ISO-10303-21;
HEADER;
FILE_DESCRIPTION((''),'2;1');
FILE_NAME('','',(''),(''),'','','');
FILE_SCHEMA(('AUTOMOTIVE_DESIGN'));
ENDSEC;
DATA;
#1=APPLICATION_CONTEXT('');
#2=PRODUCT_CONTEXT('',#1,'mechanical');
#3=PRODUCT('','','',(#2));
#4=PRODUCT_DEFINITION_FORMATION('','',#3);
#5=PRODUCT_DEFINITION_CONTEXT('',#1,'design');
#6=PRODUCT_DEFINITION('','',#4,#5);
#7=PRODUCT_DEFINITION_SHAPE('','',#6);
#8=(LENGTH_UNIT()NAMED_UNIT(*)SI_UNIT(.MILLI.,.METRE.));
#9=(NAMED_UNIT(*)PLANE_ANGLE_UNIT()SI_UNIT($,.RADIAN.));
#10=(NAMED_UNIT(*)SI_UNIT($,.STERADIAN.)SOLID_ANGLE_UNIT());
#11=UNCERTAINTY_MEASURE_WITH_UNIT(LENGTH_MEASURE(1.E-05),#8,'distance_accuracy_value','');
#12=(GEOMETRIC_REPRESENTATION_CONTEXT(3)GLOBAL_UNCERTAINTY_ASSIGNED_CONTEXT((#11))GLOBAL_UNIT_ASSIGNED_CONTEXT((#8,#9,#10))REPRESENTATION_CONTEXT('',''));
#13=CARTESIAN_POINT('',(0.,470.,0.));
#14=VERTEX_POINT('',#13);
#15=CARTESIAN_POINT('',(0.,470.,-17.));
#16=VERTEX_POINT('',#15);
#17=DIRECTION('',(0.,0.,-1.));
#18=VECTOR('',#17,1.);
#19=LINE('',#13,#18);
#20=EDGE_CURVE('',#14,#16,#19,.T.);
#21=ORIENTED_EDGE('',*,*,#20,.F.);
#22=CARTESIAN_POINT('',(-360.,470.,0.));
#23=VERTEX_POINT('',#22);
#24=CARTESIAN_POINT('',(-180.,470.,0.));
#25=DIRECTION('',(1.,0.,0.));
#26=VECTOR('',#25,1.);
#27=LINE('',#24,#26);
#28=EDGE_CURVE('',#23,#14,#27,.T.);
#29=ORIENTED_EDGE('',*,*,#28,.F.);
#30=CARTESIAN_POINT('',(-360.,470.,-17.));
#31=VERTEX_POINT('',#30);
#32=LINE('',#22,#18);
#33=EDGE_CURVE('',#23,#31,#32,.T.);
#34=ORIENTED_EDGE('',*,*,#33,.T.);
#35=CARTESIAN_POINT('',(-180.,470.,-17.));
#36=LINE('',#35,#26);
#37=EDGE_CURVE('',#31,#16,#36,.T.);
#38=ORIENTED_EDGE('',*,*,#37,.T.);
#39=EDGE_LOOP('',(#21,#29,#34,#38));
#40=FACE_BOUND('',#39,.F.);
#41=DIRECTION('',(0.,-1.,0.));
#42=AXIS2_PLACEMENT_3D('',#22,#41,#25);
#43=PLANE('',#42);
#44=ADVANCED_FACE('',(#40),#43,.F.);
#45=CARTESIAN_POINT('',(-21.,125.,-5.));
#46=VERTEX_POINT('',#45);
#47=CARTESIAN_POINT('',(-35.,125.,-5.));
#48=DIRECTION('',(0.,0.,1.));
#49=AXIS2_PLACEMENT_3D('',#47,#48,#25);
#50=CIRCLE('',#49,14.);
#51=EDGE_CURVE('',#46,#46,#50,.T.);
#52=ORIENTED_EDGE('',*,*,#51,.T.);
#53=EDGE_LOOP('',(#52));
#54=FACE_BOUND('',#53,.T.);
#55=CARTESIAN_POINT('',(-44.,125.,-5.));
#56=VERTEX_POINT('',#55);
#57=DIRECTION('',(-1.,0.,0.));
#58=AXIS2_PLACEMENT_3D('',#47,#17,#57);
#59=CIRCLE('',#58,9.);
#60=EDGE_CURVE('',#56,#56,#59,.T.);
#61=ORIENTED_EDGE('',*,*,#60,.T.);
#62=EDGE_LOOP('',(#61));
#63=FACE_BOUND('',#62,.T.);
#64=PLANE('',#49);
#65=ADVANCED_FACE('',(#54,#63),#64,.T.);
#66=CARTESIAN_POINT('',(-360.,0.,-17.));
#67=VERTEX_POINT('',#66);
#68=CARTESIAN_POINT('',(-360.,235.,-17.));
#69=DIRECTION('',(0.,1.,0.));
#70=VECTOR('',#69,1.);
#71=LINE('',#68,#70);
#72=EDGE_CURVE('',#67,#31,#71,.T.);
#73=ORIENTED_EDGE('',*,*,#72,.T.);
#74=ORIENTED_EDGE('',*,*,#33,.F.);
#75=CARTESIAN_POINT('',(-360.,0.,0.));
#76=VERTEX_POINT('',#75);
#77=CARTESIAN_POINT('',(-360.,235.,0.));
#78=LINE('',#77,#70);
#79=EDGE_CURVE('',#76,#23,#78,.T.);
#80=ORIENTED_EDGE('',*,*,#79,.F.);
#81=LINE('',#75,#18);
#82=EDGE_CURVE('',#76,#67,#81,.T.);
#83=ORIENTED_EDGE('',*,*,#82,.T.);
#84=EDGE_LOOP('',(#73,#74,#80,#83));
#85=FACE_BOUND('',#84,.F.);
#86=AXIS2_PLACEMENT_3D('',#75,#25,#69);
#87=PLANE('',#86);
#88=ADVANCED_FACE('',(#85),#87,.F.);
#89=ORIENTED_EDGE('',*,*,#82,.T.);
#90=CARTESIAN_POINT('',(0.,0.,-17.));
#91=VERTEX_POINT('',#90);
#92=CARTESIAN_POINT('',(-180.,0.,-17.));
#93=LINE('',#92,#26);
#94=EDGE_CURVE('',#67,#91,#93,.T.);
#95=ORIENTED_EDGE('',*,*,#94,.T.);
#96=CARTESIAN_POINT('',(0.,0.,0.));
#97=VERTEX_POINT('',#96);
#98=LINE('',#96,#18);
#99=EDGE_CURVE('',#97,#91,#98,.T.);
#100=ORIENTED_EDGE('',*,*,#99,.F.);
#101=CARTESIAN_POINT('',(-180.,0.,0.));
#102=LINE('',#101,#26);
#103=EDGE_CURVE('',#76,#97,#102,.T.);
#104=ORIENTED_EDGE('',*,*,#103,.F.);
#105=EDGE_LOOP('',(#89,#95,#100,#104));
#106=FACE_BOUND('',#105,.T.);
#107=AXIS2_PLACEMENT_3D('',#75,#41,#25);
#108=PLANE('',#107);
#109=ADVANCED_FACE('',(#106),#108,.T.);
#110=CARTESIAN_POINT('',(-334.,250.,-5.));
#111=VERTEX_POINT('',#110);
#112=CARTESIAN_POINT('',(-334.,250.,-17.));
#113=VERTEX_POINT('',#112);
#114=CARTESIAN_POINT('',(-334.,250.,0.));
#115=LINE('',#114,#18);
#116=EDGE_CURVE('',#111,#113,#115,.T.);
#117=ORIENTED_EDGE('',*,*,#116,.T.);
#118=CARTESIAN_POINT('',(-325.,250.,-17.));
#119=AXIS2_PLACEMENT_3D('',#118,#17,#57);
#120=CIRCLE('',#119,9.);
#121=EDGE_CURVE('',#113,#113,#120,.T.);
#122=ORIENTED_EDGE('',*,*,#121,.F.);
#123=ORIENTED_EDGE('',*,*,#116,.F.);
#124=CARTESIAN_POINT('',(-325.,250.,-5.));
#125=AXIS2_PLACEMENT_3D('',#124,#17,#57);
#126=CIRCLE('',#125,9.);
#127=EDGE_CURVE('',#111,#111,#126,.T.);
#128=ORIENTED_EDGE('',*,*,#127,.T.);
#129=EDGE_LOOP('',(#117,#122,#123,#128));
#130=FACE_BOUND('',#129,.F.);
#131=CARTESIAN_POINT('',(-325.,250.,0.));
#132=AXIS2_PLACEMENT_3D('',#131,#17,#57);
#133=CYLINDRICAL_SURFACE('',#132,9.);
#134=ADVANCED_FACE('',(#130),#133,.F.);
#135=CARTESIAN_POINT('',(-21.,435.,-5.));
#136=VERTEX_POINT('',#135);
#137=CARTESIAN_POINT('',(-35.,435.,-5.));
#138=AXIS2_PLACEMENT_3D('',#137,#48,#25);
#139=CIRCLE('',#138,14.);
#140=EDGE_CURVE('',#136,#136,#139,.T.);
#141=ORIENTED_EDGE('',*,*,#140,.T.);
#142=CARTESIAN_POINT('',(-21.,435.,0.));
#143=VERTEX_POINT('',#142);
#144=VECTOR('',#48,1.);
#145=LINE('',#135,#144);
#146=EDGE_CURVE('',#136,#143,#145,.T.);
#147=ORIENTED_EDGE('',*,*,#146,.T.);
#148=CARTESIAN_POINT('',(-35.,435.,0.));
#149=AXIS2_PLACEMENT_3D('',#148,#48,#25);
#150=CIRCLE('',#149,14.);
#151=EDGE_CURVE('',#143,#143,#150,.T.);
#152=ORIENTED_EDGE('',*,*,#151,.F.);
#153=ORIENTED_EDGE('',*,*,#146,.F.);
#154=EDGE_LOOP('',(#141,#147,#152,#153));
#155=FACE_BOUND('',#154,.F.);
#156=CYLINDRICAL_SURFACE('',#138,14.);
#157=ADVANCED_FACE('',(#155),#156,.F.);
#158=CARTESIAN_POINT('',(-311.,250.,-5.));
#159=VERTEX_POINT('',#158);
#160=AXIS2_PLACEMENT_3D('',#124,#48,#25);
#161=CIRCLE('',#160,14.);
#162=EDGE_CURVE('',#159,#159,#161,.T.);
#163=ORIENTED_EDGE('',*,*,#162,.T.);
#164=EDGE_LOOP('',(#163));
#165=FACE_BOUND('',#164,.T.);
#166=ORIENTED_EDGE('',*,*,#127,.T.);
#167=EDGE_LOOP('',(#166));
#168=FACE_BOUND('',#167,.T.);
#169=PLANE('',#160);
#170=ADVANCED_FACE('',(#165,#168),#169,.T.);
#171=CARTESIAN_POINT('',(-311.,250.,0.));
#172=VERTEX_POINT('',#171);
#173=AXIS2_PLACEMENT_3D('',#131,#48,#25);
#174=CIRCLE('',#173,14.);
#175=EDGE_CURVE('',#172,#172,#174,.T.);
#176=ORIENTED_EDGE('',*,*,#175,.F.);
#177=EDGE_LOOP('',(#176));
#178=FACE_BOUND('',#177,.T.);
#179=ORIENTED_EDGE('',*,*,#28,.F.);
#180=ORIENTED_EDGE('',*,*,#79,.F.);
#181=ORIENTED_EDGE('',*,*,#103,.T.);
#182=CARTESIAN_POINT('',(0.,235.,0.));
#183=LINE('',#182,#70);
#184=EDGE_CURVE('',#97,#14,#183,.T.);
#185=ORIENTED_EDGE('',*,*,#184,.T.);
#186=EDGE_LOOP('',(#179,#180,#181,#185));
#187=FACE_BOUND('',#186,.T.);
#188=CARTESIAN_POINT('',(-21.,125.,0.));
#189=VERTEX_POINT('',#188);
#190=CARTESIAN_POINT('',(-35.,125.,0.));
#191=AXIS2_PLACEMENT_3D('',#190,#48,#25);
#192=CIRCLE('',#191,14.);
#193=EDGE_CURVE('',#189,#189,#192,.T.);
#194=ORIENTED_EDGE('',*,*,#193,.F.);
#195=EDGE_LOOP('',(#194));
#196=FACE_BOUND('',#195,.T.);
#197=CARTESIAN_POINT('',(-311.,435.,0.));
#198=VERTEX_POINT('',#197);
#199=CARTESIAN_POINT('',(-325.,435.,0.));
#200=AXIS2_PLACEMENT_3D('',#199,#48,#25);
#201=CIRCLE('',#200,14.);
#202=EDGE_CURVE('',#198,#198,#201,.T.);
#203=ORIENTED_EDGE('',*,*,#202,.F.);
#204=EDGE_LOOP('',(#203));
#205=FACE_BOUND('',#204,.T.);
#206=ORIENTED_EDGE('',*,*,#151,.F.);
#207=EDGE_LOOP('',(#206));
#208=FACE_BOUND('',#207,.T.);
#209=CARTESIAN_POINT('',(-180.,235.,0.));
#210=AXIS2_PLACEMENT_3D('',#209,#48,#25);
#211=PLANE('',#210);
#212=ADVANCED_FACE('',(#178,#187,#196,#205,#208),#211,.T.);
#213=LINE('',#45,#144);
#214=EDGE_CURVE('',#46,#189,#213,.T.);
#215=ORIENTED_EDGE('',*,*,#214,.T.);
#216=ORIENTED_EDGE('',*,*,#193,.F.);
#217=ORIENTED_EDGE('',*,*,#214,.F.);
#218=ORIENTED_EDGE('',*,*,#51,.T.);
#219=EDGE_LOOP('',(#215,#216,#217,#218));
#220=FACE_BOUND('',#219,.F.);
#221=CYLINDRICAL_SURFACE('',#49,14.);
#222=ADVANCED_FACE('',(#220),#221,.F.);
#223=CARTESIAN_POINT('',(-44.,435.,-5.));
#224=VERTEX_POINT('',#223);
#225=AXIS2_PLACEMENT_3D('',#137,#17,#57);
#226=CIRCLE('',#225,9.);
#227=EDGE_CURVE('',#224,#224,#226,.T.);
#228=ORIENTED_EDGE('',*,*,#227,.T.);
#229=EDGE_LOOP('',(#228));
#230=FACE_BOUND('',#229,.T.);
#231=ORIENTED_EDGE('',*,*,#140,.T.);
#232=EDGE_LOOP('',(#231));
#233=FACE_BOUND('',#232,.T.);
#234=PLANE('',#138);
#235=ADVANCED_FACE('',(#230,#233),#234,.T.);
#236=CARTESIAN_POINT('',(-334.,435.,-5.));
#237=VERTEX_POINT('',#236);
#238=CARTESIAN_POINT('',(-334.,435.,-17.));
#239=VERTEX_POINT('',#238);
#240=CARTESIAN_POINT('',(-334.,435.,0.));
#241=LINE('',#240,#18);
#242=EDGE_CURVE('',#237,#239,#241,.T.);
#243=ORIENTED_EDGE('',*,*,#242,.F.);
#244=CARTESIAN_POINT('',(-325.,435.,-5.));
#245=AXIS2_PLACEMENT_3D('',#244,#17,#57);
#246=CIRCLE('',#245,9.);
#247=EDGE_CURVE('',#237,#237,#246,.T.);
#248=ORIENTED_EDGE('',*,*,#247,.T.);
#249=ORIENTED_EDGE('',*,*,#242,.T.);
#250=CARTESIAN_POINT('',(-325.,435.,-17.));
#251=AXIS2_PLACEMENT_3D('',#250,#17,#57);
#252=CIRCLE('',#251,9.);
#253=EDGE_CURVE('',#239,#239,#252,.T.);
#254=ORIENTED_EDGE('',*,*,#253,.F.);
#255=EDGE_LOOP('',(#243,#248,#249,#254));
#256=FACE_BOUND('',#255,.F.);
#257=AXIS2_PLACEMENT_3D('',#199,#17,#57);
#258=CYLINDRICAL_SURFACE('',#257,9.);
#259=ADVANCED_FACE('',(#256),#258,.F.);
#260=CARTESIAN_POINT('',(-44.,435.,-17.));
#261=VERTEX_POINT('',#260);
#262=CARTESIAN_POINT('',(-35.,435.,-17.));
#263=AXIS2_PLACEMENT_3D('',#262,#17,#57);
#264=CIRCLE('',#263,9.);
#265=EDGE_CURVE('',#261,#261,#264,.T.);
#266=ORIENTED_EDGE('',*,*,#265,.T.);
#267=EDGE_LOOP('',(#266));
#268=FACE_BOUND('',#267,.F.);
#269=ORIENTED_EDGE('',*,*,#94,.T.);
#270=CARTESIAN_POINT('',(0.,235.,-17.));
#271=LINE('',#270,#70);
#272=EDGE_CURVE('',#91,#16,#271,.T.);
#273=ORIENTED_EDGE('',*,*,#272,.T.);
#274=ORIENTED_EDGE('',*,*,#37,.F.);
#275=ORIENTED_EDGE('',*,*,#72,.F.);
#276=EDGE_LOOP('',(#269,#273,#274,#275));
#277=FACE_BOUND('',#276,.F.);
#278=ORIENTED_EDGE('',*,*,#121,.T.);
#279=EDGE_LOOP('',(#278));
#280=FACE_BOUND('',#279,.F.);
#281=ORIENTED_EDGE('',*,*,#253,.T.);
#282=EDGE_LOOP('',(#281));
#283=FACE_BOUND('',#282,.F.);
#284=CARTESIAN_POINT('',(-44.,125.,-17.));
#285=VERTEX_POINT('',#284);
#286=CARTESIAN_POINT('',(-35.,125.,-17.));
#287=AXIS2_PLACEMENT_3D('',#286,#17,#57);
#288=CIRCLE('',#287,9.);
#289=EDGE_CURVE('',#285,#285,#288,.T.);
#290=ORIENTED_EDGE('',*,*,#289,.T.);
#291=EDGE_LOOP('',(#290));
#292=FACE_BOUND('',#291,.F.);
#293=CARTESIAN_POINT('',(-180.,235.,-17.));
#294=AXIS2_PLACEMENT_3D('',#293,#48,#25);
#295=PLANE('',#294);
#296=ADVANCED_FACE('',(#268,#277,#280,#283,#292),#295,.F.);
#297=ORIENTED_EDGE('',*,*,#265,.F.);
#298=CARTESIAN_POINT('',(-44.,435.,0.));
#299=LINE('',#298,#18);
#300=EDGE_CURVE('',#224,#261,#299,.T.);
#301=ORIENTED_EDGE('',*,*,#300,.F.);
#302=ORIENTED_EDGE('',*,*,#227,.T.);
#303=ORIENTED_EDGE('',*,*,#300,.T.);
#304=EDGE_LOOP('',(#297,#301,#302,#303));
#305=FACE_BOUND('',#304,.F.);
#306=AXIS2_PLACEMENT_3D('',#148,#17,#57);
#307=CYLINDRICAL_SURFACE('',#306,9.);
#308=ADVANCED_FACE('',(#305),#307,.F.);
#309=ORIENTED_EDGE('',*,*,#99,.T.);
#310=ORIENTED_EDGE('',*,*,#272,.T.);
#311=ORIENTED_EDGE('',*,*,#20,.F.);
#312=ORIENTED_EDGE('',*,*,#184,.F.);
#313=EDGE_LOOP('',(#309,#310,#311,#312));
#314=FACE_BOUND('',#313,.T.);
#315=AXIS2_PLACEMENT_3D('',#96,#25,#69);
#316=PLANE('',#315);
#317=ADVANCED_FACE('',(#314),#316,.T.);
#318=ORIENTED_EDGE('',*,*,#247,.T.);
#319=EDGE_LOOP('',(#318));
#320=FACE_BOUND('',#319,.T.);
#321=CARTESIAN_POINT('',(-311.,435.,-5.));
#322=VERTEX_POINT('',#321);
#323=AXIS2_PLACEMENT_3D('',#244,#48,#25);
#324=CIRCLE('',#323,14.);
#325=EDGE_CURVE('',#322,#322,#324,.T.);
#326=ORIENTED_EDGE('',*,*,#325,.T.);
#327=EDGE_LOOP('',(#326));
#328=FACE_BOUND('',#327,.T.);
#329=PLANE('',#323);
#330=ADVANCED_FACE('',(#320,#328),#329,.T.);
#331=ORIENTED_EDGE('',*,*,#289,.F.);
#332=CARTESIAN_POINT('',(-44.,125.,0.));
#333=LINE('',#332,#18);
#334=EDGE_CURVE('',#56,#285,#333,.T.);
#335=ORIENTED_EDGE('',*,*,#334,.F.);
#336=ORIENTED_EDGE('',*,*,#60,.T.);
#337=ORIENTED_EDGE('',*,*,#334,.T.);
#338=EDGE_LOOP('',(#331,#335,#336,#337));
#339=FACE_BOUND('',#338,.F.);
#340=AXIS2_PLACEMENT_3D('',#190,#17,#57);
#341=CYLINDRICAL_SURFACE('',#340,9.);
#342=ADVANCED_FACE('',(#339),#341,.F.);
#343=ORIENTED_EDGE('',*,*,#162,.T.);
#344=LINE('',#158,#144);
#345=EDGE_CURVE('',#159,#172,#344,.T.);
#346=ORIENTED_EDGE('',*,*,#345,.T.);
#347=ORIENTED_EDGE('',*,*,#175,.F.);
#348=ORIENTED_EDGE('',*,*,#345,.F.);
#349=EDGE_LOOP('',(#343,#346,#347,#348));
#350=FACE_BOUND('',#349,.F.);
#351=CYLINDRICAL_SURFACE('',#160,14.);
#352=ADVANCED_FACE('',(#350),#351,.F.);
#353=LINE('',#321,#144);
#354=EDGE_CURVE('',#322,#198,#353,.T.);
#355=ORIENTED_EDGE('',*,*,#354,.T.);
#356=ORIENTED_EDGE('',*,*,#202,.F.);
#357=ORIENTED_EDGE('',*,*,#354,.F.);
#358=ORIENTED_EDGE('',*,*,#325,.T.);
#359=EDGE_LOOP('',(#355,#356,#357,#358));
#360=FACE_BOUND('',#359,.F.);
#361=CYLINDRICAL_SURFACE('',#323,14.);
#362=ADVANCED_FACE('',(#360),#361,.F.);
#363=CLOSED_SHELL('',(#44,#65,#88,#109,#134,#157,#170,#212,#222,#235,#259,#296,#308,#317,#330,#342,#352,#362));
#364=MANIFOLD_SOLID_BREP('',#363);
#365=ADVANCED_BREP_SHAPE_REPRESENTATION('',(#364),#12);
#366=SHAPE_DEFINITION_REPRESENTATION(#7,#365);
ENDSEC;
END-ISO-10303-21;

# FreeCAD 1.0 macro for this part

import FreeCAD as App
import Part
import Sketcher
Q = App.Units.Quantity

doc = App.newDocument("Part")
body = doc.addObject("PartDesign::Body", "Body")

sketch1 = body.newObject("Sketcher::SketchObject", "Sketch")
sketch1.AttachmentSupport = (doc.getObject("XY_Plane"), [""])
sketch1.MapMode = "FlatFace"
sketch1.addGeometry([
    Part.LineSegment(App.Vector(-360, 470, 0), App.Vector(-360, 0, 0)),
    Part.LineSegment(App.Vector(-360, 0, 0), App.Vector(0, 0, 0)),
    Part.LineSegment(App.Vector(0, 0, 0), App.Vector(0, 470, 0)),
    Part.LineSegment(App.Vector(0, 470, 0), App.Vector(-360, 470, 0)),
], False)
sketch1.addConstraint([
    Sketcher.Constraint("Coincident", 0, 2, 1, 1),
    Sketcher.Constraint("Coincident", 1, 2, 2, 1),
    Sketcher.Constraint("Coincident", 2, 2, 3, 1),
    Sketcher.Constraint("Coincident", 3, 2, 0, 1),
    Sketcher.Constraint("Vertical", 0),
    Sketcher.Constraint("Horizontal", 1),
    Sketcher.Constraint("Vertical", 2),
    Sketcher.Constraint("Horizontal", 3),
    Sketcher.Constraint("Coincident", 1, 2, -1, 1),
    Sketcher.Constraint("DistanceX", 1, 1, 1, 2, Q("360 mm")),
    Sketcher.Constraint("DistanceY", 0, 2, 0, 1, Q("470 mm")),
])
pad1 = body.newObject("PartDesign::Pad", "Pad")
pad1.Profile = sketch1
pad1.Length = 17
pad1.Reversed = True

sketch2 = body.newObject("Sketcher::SketchObject", "Sketch001")
sketch2.AttachmentSupport = (doc.getObject("XY_Plane"), [""])
sketch2.MapMode = "FlatFace"
sketch2.addGeometry([
    Part.Circle(App.Vector(-325, 435, 0), App.Vector(0, 0, 1), 9),
    Part.Circle(App.Vector(-325, 250, 0), App.Vector(0, 0, 1), 9),
    Part.Circle(App.Vector(-35, 125, 0), App.Vector(0, 0, 1), 9),
    Part.Circle(App.Vector(-35, 435, 0), App.Vector(0, 0, 1), 9),
], False)
sketch2.addConstraint([
    Sketcher.Constraint("Equal", 0, 1),
    Sketcher.Constraint("Equal", 1, 2),
    Sketcher.Constraint("Equal", 2, 3),
    Sketcher.Constraint("Horizontal", 0, 3, 3, 3),
    Sketcher.Constraint("Vertical", 0, 3, 1, 3),
    Sketcher.Constraint("Vertical", 2, 3, 3, 3),
    Sketcher.Constraint("Diameter", 0, Q("18 mm")),
    Sketcher.Constraint("DistanceX", 0, 3, -1, 1, Q("325 mm")),
    Sketcher.Constraint("DistanceY", -1, 1, 0, 3, Q("435 mm")),
    Sketcher.Constraint("DistanceY", -1, 1, 1, 3, Q("250 mm")),
    Sketcher.Constraint("DistanceX", 2, 3, -1, 1, Q("35 mm")),
    Sketcher.Constraint("DistanceY", -1, 1, 2, 3, Q("125 mm")),
])
doc.recompute()
hole = body.newObject("PartDesign::Hole", "Hole")
hole.Profile = sketch2
hole.ThreadType = "None"
hole.Diameter = 18
hole.DepthType = "ThroughAll"
hole.HoleCutType = "Counterbore"
hole.HoleCutDiameter = 28
hole.HoleCutDepth = 5

doc.recompute()
